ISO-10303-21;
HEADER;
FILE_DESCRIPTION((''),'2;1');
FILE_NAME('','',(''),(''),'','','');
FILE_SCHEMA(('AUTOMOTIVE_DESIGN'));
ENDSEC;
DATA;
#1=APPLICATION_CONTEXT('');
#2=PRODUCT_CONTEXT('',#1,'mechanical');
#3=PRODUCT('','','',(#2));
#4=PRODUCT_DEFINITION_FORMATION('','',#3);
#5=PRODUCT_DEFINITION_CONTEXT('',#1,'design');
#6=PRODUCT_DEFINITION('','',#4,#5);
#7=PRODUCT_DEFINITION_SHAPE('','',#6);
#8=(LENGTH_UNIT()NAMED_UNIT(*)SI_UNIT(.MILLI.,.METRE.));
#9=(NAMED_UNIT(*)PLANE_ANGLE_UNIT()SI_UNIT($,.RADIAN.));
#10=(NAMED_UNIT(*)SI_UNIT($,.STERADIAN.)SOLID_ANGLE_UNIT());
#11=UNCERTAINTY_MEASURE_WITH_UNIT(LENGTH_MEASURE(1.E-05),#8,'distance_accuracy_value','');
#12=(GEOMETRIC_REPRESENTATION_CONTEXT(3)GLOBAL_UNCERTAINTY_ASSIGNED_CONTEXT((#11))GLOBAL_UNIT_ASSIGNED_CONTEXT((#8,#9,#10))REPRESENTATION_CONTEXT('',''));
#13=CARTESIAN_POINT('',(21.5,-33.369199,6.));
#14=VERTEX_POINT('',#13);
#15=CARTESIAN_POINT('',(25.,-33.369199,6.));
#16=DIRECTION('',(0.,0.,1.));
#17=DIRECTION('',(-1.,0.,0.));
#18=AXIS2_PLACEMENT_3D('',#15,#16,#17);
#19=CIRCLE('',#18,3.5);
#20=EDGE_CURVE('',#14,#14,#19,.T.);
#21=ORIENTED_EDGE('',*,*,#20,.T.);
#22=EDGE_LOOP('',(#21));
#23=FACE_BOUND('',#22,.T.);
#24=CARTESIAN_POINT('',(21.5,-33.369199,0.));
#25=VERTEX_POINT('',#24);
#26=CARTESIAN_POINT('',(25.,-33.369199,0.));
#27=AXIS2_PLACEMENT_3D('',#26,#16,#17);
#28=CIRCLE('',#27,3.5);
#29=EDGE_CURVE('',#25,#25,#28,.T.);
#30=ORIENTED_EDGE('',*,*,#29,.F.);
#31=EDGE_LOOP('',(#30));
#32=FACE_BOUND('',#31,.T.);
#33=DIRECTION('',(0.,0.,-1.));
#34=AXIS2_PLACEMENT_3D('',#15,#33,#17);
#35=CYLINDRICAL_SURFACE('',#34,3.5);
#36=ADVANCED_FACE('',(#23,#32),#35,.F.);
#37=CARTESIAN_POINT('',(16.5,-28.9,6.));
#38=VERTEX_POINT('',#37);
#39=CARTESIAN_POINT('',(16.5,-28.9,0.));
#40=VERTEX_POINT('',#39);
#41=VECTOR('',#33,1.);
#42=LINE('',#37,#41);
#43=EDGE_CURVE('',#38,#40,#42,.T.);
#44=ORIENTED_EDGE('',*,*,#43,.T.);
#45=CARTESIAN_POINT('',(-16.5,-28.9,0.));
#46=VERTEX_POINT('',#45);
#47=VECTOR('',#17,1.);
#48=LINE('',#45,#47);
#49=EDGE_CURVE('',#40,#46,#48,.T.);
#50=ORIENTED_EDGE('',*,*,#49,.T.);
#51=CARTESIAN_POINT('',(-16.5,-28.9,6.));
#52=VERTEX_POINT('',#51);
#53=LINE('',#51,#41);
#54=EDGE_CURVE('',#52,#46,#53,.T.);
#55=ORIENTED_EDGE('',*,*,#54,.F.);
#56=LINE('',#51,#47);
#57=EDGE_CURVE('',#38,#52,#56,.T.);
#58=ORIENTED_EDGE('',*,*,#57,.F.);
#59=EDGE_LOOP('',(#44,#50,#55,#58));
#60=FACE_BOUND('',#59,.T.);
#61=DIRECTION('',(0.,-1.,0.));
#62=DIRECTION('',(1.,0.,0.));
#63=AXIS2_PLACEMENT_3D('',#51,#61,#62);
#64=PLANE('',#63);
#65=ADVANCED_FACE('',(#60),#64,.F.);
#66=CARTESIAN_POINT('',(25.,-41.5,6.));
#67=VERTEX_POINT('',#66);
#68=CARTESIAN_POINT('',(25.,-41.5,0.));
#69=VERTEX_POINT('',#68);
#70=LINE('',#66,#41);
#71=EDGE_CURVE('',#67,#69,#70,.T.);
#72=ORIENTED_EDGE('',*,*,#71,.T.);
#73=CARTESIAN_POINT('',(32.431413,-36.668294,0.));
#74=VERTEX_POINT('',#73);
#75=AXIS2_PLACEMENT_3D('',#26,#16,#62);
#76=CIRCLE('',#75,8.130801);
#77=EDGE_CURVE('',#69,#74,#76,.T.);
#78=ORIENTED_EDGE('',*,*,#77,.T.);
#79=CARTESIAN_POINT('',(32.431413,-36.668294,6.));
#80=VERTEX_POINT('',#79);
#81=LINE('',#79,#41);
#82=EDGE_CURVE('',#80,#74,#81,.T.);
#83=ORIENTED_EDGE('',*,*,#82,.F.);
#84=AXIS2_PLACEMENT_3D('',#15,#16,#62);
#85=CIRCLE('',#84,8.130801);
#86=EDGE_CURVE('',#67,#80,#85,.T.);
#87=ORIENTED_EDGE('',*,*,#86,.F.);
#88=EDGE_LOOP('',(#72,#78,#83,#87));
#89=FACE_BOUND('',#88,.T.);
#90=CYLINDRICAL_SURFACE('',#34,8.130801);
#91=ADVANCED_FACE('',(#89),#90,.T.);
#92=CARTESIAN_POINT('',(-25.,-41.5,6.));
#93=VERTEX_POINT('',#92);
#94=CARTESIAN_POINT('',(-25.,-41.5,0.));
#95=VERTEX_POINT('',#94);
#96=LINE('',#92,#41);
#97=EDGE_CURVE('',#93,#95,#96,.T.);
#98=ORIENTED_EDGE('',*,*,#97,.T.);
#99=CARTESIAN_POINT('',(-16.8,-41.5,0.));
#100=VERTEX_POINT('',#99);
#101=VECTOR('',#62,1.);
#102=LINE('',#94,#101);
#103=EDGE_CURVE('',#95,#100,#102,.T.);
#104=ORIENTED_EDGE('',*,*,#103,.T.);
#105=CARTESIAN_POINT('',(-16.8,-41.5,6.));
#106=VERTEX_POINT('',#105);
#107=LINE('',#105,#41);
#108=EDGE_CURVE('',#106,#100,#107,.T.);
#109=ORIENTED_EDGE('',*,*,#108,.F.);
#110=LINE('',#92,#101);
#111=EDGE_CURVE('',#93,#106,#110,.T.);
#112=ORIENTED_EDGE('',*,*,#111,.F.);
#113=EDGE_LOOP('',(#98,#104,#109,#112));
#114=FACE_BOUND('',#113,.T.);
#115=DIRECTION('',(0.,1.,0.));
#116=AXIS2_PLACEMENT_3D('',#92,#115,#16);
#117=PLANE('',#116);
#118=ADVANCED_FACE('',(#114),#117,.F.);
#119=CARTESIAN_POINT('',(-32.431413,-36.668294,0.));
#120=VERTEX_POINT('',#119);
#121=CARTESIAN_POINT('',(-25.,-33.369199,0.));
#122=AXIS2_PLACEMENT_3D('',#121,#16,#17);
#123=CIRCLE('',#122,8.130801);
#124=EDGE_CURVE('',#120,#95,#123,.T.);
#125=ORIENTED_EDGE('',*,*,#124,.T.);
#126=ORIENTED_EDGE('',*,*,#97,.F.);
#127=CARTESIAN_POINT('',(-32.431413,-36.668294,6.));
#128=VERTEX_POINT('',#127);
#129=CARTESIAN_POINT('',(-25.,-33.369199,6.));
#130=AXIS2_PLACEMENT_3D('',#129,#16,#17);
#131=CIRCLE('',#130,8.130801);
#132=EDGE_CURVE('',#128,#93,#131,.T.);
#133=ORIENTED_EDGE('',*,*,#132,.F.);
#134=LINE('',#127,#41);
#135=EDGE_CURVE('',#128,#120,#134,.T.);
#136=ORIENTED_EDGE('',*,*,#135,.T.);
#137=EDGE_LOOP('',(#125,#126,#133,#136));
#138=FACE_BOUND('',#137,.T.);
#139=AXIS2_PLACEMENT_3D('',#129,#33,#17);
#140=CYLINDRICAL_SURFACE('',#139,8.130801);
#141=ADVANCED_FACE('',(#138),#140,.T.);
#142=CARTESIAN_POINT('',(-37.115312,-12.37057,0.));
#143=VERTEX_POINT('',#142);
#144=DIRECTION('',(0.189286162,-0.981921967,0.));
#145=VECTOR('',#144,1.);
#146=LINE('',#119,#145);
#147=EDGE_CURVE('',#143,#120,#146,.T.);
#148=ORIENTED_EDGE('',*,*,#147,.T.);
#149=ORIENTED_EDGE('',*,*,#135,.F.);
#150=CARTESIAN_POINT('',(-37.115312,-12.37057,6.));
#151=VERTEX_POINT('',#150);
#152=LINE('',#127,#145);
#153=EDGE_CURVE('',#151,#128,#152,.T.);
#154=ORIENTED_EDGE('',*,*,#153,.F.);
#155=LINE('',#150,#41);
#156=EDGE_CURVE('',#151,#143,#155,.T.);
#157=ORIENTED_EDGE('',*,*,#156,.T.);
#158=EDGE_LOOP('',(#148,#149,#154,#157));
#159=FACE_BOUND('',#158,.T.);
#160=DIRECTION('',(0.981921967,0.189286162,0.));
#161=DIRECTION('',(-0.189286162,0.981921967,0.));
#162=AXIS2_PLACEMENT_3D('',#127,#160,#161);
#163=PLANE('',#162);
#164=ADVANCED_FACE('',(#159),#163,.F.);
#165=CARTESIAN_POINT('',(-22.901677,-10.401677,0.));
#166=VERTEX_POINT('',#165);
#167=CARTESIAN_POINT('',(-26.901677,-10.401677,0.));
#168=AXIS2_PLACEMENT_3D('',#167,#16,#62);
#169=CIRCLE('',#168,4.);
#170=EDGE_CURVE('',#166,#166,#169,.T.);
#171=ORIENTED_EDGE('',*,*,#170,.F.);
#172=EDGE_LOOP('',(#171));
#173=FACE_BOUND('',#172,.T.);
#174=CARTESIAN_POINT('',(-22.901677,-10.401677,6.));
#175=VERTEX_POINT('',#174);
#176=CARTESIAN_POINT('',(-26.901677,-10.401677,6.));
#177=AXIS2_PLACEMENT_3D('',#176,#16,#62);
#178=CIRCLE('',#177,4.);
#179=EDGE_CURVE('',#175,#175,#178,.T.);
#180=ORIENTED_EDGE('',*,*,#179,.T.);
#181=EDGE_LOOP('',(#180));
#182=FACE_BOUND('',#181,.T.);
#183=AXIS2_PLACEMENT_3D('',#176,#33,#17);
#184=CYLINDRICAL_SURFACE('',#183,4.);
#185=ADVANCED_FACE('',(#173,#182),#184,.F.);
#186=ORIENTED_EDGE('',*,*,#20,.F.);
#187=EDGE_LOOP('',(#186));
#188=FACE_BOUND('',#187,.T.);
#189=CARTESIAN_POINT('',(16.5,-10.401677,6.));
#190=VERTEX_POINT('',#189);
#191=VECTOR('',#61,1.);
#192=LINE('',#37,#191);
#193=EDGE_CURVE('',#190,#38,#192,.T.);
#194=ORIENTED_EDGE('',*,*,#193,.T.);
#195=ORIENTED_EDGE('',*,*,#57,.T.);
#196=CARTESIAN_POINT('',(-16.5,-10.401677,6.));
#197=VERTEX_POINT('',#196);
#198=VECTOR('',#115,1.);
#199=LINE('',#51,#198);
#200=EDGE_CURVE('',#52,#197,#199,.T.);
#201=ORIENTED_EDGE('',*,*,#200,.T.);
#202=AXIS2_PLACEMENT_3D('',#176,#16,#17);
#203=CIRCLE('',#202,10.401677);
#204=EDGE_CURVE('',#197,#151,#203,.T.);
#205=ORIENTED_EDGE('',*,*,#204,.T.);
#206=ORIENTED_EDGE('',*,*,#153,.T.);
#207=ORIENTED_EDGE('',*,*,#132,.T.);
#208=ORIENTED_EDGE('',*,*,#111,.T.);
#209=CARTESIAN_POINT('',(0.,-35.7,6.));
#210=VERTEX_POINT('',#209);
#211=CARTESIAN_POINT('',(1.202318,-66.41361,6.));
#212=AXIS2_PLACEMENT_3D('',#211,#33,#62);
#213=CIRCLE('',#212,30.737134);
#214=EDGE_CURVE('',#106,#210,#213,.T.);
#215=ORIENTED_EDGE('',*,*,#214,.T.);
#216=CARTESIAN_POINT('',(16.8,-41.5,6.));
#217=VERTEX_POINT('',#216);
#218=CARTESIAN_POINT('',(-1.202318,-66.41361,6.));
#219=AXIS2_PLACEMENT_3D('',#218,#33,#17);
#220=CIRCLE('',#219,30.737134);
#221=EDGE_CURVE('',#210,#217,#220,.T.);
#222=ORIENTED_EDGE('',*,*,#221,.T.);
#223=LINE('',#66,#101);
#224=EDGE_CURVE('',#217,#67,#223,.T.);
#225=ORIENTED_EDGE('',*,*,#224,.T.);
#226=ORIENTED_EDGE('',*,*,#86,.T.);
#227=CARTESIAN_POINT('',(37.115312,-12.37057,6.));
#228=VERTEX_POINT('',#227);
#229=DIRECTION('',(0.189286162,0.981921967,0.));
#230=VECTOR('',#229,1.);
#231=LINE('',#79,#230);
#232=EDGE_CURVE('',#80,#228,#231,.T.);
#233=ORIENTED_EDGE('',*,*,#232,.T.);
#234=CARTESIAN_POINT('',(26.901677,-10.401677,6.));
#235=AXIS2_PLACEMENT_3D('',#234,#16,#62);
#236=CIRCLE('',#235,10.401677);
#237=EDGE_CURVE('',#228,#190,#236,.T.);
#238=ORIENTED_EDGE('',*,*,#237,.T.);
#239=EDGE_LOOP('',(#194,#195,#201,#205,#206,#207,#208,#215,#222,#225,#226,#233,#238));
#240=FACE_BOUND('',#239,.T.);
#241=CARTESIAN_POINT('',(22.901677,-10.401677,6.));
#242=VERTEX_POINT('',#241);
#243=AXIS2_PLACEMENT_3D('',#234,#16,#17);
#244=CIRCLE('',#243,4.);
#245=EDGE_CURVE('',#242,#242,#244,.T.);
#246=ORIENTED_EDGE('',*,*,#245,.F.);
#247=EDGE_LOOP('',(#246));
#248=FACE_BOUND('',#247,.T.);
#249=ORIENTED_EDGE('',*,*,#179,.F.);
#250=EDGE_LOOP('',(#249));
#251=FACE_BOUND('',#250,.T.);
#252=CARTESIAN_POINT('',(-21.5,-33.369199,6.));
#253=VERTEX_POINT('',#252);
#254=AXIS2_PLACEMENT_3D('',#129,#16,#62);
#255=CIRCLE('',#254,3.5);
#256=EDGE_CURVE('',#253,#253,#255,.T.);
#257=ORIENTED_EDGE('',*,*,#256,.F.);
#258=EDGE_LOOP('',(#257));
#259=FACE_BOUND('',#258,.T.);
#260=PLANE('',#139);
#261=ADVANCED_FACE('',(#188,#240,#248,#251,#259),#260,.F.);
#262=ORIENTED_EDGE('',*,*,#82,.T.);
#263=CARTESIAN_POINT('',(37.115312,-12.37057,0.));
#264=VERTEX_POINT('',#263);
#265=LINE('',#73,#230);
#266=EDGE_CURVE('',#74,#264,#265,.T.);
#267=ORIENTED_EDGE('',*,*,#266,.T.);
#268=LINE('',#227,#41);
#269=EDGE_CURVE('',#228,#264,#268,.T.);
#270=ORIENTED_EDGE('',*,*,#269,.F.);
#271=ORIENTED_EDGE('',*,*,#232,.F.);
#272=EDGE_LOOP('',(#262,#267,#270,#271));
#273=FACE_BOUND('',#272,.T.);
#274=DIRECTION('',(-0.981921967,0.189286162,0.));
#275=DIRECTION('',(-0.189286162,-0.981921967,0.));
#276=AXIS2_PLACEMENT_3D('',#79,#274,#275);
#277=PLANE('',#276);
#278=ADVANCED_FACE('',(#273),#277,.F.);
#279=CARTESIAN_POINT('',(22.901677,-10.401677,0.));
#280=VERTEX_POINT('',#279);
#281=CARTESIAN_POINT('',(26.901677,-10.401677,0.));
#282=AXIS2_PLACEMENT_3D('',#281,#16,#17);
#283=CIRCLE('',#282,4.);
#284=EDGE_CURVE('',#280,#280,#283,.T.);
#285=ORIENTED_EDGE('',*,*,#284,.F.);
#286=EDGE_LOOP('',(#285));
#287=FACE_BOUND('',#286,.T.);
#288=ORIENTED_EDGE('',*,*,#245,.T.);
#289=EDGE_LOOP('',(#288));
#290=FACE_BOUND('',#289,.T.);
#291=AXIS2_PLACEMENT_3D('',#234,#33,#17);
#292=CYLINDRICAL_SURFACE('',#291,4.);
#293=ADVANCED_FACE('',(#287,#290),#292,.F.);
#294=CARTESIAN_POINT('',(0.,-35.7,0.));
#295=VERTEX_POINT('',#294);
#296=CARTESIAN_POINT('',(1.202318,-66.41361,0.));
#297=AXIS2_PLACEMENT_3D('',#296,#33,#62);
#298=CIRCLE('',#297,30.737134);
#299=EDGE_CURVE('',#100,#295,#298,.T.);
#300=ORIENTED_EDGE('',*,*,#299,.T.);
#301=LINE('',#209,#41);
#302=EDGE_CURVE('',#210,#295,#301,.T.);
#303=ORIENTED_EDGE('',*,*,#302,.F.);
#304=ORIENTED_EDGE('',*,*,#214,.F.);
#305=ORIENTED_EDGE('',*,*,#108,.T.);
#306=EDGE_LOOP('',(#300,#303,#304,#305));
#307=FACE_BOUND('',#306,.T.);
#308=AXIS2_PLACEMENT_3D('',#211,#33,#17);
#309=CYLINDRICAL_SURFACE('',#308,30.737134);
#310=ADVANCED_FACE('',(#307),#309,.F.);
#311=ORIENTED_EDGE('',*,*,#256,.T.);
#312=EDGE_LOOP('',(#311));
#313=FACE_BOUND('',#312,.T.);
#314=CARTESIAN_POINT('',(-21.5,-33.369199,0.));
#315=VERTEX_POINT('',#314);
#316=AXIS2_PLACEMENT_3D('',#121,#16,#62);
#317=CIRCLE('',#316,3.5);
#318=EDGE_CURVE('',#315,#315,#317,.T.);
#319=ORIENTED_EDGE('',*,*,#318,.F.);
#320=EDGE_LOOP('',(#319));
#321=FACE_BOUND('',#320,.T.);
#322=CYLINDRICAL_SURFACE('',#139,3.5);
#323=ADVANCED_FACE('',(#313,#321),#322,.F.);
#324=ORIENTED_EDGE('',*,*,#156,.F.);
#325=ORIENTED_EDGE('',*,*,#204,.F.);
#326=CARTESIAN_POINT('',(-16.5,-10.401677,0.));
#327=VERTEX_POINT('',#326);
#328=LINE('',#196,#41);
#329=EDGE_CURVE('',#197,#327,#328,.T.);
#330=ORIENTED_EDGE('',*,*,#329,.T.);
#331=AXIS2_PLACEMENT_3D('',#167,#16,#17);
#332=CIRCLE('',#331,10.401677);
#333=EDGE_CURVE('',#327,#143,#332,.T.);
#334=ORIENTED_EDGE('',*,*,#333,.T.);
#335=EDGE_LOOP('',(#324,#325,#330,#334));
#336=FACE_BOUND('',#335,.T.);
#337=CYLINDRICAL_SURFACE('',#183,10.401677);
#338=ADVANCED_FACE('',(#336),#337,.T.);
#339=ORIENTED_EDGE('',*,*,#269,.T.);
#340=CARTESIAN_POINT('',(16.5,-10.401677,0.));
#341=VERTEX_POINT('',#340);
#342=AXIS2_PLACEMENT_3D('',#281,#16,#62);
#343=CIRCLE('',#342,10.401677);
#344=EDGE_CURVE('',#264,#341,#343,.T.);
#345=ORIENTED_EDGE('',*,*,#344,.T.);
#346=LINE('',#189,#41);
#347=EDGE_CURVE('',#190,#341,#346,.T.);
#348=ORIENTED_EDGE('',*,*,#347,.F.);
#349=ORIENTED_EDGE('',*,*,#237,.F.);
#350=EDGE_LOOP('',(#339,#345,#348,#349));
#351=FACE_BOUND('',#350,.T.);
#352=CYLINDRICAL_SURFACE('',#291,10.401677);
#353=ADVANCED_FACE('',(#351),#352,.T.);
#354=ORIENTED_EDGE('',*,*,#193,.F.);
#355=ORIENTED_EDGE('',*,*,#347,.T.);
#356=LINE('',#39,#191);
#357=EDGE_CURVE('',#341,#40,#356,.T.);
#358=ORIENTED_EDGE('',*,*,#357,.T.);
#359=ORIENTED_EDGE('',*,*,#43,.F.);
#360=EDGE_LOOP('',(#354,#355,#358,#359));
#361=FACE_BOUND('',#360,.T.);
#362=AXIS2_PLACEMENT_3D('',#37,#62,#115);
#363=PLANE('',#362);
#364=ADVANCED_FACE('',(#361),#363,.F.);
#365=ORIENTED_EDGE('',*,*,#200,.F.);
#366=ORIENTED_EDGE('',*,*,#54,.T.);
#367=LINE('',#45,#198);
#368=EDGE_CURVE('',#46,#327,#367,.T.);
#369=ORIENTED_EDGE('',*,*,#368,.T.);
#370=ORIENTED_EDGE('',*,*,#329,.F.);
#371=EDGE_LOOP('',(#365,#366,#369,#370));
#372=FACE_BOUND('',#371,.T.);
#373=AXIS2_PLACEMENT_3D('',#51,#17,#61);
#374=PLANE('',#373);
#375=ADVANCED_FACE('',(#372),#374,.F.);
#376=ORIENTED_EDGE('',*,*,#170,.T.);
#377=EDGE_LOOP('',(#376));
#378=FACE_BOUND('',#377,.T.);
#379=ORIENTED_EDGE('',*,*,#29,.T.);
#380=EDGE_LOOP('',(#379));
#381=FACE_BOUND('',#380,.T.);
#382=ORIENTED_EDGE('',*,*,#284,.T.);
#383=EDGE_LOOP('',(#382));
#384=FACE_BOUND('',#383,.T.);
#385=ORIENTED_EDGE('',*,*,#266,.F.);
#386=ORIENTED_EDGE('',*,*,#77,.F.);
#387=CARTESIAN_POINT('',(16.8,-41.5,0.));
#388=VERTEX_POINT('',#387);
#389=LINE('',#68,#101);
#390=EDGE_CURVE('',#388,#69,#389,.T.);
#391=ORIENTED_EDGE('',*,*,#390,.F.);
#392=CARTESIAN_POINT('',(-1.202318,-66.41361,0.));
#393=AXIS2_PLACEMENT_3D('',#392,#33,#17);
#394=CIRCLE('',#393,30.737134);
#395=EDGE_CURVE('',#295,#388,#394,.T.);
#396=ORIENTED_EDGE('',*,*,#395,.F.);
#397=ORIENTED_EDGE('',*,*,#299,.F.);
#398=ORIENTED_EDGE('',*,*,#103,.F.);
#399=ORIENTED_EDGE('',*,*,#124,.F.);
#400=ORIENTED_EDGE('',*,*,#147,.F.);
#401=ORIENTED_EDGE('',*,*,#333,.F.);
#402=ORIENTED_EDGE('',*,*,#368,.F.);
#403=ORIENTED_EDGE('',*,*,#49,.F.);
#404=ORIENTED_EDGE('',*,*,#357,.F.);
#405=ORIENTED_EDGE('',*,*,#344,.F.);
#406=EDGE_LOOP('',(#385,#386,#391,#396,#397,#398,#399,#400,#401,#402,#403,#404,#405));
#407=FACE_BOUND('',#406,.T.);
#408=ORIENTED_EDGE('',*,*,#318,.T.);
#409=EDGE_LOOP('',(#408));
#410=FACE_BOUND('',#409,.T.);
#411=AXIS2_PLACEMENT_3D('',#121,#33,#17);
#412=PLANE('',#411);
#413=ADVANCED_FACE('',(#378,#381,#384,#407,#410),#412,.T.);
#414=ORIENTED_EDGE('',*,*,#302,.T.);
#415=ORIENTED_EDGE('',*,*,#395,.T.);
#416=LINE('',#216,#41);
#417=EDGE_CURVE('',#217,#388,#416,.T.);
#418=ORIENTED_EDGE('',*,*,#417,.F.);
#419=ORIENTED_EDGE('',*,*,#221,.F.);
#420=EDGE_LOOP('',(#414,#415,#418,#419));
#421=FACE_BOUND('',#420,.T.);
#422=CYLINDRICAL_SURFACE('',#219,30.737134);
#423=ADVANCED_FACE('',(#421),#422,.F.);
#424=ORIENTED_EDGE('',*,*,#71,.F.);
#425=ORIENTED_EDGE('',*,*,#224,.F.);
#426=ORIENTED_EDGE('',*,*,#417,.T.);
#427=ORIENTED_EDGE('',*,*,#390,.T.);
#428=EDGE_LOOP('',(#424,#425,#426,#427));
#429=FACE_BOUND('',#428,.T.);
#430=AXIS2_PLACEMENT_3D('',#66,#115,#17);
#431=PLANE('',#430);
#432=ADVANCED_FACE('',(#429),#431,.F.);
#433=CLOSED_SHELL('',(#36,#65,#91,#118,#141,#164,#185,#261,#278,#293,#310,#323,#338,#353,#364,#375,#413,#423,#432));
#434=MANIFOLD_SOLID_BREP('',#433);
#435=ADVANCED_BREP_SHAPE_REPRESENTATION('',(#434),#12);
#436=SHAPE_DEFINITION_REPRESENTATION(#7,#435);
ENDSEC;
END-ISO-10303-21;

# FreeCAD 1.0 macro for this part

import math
import FreeCAD as App
import Part
import Sketcher
from FreeCAD import Vector

doc = App.newDocument("Part")
body = doc.addObject("PartDesign::Body", "Body")

# Sketch on XY plane
sketch1 = doc.addObject("Sketcher::SketchObject", "Sketch")
body.addObject(sketch1)
sketch1.AttachmentSupport = (doc.XY_Plane, [""])
sketch1.MapMode = "FlatFace"
sketch1.addGeometry([
    Part.LineSegment(Vector(-25, -41.5, 0), Vector(-16.8, -41.5, 0)),  # 0
    Part.ArcOfCircle(Part.Circle(Vector(1.2, -66.4, 0), Vector(0, 0, 1), 30.7), math.radians(92), math.radians(126)),  # 1
    Part.ArcOfCircle(Part.Circle(Vector(-1.2, -66.4, 0), Vector(0, 0, 1), 30.7), math.radians(54), math.radians(88)),  # 2
    Part.LineSegment(Vector(16.8, -41.5, 0), Vector(25, -41.5, 0)),  # 3
    Part.ArcOfCircle(Part.Circle(Vector(25, -33.4, 0), Vector(0, 0, 1), 8.1), math.radians(-90), math.radians(-24)),  # 4
    Part.LineSegment(Vector(32.4, -36.7, 0), Vector(37.1, -12.4, 0)),  # 5
    Part.ArcOfCircle(Part.Circle(Vector(26.9, -10.4, 0), Vector(0, 0, 1), 10.4), math.radians(-11), math.radians(180)),  # 6
    Part.LineSegment(Vector(16.5, -10.4, 0), Vector(16.5, -28.9, 0)),  # 7
    Part.LineSegment(Vector(16.5, -28.9, 0), Vector(-16.5, -28.9, 0)),  # 8
    Part.LineSegment(Vector(-16.5, -28.9, 0), Vector(-16.5, -10.4, 0)),  # 9
    Part.ArcOfCircle(Part.Circle(Vector(-26.9, -10.4, 0), Vector(0, 0, 1), 10.4), math.radians(0), math.radians(191)),  # 10
    Part.LineSegment(Vector(-37.1, -12.4, 0), Vector(-32.4, -36.7, 0)),  # 11
    Part.ArcOfCircle(Part.Circle(Vector(-25, -33.4, 0), Vector(0, 0, 1), 8.1), math.radians(-156), math.radians(-90)),  # 12
    Part.Circle(Vector(-25, -33.4, 0), Vector(0, 0, 1), 3.5),  # 13
    Part.Circle(Vector(25, -33.4, 0), Vector(0, 0, 1), 3.5),  # 14
    Part.Circle(Vector(-26.9, -10.4, 0), Vector(0, 0, 1), 4),  # 15
    Part.Circle(Vector(26.9, -10.4, 0), Vector(0, 0, 1), 4),  # 16
], False)
sketch1.addConstraint([
    Sketcher.Constraint("Coincident", 0, 2, 1, 2),
    Sketcher.Constraint("Coincident", 1, 1, 2, 2),
    Sketcher.Constraint("Coincident", 2, 1, 3, 1),
    Sketcher.Constraint("Tangent", 3, 2, 4, 1),
    Sketcher.Constraint("Coincident", 4, 2, 5, 1),
    Sketcher.Constraint("Tangent", 5, 2, 6, 1),
    Sketcher.Constraint("Tangent", 6, 2, 7, 1),
    Sketcher.Constraint("Coincident", 7, 2, 8, 1),
    Sketcher.Constraint("Coincident", 8, 2, 9, 1),
    Sketcher.Constraint("Tangent", 9, 2, 10, 1),
    Sketcher.Constraint("Tangent", 10, 2, 11, 1),
    Sketcher.Constraint("Coincident", 11, 2, 12, 1),
    Sketcher.Constraint("Tangent", 12, 2, 0, 1),
    Sketcher.Constraint("Horizontal", 0),
    Sketcher.Constraint("Horizontal", 3),
    Sketcher.Constraint("Vertical", 7),
    Sketcher.Constraint("Horizontal", 8),
    Sketcher.Constraint("Vertical", 9),
    Sketcher.Constraint("Coincident", 13, 3, 12, 3),
    Sketcher.Constraint("Coincident", 14, 3, 4, 3),
    Sketcher.Constraint("Coincident", 15, 3, 10, 3),
    Sketcher.Constraint("Coincident", 16, 3, 6, 3),
    Sketcher.Constraint("Equal", 1, 2),
    Sketcher.Constraint("Equal", 6, 10),
    Sketcher.Constraint("Equal", 4, 12),
    Sketcher.Constraint("Equal", 13, 14),
    Sketcher.Constraint("Equal", 15, 16),
    Sketcher.Constraint("Symmetric", 1, 3, 2, 3, -2),
    Sketcher.Constraint("Symmetric", 6, 3, 10, 3, -2),
    Sketcher.Constraint("Symmetric", 4, 3, 12, 3, -2),
    Sketcher.Constraint("Horizontal", 5, 2, 10, 2),
    Sketcher.Constraint("Diameter", 13, 7.0),
    Sketcher.Constraint("Diameter", 15, 8.0),
    Sketcher.Constraint("DistanceX", 8, 2, 8, 1, 33.0),
    Sketcher.Constraint("DistanceX", 0, 1, 0, 2, 8.2),
    Sketcher.Constraint("DistanceX", -1, 1, 4, 3, 25.0),
    Sketcher.Constraint("DistanceY", 0, 2, -1, 1, 41.5),
    Sketcher.Constraint("DistanceY", 1, 1, -1, 1, 35.7),
    Sketcher.Constraint("DistanceY", 7, 2, -1, 1, 28.9),
    Sketcher.Constraint("Radius", 4, 8.130801),
    Sketcher.Constraint("Radius", 1, 30.737134),
    Sketcher.Constraint("Radius", 6, 10.401677),
    Sketcher.Constraint("DistanceX", 4, 2, 5, 2, 4.683899),
    Sketcher.Constraint("DistanceY", 7, 2, 7, 1, 18.498323),
])
pad1 = doc.addObject("PartDesign::Pad", "Pad")
body.addObject(pad1)
pad1.Profile = sketch1
pad1.Length = 6

doc.recompute()
